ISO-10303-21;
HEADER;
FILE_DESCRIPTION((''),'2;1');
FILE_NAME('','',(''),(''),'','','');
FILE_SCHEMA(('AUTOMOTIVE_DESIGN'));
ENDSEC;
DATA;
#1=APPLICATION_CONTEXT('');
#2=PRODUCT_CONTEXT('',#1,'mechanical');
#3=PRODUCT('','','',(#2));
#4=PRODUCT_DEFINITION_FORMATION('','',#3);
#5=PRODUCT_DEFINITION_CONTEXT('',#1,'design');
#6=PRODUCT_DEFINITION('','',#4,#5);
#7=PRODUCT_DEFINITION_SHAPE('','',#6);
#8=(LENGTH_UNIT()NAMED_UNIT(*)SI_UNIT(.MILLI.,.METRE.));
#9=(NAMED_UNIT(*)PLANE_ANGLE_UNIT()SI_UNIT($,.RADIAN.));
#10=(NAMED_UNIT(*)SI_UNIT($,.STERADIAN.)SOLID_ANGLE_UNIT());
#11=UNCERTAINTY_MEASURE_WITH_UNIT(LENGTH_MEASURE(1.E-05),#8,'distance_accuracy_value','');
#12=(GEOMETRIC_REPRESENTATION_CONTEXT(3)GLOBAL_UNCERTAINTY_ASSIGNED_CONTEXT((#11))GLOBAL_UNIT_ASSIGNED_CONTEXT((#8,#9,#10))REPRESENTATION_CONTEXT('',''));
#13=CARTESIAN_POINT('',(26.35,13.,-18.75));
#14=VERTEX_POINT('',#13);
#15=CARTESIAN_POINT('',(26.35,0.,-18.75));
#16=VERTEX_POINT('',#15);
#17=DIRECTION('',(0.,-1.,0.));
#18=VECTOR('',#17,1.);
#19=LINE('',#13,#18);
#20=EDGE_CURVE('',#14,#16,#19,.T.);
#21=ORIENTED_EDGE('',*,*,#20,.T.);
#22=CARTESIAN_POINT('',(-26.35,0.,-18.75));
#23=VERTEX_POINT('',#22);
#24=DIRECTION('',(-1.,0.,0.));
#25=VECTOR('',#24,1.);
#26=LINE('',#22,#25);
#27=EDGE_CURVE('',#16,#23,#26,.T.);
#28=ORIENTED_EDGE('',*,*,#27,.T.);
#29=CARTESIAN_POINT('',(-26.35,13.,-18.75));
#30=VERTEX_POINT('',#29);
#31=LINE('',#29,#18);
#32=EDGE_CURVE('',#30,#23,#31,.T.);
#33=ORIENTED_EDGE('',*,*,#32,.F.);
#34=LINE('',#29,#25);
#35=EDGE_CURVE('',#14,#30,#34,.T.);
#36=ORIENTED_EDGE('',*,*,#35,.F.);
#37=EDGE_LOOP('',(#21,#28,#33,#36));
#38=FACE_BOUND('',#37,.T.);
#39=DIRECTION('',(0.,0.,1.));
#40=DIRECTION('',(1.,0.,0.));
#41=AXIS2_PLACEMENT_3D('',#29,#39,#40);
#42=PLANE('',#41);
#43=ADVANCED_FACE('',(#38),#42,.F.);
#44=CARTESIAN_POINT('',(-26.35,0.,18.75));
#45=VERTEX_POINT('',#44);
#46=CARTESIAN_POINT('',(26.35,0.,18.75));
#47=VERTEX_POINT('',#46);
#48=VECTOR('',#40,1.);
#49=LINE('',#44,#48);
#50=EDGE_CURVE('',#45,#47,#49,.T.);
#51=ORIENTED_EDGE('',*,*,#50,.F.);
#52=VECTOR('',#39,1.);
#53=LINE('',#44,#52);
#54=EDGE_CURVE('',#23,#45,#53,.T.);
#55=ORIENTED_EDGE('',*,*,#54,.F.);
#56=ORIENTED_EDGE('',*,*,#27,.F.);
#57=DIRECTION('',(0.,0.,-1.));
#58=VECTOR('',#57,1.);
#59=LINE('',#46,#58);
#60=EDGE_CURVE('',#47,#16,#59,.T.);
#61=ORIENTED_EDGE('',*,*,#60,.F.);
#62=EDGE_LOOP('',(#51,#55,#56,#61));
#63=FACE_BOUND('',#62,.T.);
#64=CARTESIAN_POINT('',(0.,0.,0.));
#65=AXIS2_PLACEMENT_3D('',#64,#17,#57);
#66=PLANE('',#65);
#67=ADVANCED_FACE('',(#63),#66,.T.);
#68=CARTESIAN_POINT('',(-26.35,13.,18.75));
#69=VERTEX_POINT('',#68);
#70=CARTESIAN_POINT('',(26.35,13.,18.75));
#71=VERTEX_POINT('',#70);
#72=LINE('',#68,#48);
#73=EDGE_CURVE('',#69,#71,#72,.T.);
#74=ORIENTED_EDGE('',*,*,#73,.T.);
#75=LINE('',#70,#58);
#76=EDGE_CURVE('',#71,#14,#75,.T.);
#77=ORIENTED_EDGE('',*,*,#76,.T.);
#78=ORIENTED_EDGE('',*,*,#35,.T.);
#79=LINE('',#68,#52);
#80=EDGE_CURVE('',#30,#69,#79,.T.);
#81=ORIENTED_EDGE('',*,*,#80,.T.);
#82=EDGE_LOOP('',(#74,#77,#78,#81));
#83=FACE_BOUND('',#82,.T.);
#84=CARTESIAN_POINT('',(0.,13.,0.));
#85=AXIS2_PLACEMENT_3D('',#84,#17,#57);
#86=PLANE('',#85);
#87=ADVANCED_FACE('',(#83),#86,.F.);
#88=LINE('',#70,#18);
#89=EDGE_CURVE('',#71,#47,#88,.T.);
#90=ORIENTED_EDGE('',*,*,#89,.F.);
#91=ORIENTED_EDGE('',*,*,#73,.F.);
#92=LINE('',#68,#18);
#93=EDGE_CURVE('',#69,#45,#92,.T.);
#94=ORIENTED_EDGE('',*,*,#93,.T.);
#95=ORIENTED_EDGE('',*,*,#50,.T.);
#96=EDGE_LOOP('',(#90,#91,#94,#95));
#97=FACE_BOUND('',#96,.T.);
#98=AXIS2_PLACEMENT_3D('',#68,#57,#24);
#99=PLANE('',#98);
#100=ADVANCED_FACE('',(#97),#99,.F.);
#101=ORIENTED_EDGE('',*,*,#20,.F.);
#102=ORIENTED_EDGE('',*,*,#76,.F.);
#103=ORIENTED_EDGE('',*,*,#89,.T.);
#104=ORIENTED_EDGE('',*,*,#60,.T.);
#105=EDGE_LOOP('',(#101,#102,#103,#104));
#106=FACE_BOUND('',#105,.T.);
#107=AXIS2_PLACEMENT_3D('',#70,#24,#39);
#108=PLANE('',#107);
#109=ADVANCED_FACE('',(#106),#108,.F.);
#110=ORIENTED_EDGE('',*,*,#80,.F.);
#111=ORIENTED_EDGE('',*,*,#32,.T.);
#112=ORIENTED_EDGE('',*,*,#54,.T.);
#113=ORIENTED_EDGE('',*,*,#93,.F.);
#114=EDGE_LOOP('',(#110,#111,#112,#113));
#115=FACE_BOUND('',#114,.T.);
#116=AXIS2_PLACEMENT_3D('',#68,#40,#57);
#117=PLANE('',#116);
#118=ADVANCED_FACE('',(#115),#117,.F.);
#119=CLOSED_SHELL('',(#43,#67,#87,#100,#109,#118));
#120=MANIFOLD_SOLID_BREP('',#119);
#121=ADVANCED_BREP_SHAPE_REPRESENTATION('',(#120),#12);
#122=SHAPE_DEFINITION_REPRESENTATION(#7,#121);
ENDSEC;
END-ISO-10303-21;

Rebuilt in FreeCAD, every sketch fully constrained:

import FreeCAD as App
import Part
import Sketcher
from FreeCAD import Vector
Q = App.Units.Quantity


def add_polygon(sketch, points):
    """Adds a closed chain of lines whose ends are joined by coincident constraints."""
    first, n = sketch.GeometryCount, len(points)
    for a, b in zip(points, points[1:] + points[:1]):
        sketch.addGeometry(Part.LineSegment(App.Vector(*a, 0), App.Vector(*b, 0)), False)
    for i in range(n):
        sketch.addConstraint(Sketcher.Constraint("Coincident", first + i, 2, first + (i + 1) % n, 1))

doc = App.newDocument("Part")
body = doc.addObject("PartDesign::Body", "Body")

sketch1 = body.newObject("Sketcher::SketchObject", "Sketch")
sketch1.AttachmentSupport = (doc.getObject("XZ_Plane"), [""])
sketch1.MapMode = "FlatFace"
add_polygon(sketch1, [(-26.35, -18.75), (-26.35, 18.75), (26.35, 18.75), (26.35, -18.75)])
sketch1.addConstraint([
    Sketcher.Constraint("Vertical", 0),
    Sketcher.Constraint("Horizontal", 1),
    Sketcher.Constraint("Vertical", 2),
    Sketcher.Constraint("Horizontal", 3),
    Sketcher.Constraint("Symmetric", 0, 2, 2, 2, -1, 1),
    Sketcher.Constraint("DistanceX", 1, 1, 1, 2, Q("52.7 mm")),
    Sketcher.Constraint("DistanceY", 0, 1, 0, 2, Q("37.5 mm")),
])
pad1 = body.newObject("PartDesign::Pad", "Pad")
pad1.Profile = sketch1
pad1.Length = 13
pad1.Reversed = True

doc.recompute()
